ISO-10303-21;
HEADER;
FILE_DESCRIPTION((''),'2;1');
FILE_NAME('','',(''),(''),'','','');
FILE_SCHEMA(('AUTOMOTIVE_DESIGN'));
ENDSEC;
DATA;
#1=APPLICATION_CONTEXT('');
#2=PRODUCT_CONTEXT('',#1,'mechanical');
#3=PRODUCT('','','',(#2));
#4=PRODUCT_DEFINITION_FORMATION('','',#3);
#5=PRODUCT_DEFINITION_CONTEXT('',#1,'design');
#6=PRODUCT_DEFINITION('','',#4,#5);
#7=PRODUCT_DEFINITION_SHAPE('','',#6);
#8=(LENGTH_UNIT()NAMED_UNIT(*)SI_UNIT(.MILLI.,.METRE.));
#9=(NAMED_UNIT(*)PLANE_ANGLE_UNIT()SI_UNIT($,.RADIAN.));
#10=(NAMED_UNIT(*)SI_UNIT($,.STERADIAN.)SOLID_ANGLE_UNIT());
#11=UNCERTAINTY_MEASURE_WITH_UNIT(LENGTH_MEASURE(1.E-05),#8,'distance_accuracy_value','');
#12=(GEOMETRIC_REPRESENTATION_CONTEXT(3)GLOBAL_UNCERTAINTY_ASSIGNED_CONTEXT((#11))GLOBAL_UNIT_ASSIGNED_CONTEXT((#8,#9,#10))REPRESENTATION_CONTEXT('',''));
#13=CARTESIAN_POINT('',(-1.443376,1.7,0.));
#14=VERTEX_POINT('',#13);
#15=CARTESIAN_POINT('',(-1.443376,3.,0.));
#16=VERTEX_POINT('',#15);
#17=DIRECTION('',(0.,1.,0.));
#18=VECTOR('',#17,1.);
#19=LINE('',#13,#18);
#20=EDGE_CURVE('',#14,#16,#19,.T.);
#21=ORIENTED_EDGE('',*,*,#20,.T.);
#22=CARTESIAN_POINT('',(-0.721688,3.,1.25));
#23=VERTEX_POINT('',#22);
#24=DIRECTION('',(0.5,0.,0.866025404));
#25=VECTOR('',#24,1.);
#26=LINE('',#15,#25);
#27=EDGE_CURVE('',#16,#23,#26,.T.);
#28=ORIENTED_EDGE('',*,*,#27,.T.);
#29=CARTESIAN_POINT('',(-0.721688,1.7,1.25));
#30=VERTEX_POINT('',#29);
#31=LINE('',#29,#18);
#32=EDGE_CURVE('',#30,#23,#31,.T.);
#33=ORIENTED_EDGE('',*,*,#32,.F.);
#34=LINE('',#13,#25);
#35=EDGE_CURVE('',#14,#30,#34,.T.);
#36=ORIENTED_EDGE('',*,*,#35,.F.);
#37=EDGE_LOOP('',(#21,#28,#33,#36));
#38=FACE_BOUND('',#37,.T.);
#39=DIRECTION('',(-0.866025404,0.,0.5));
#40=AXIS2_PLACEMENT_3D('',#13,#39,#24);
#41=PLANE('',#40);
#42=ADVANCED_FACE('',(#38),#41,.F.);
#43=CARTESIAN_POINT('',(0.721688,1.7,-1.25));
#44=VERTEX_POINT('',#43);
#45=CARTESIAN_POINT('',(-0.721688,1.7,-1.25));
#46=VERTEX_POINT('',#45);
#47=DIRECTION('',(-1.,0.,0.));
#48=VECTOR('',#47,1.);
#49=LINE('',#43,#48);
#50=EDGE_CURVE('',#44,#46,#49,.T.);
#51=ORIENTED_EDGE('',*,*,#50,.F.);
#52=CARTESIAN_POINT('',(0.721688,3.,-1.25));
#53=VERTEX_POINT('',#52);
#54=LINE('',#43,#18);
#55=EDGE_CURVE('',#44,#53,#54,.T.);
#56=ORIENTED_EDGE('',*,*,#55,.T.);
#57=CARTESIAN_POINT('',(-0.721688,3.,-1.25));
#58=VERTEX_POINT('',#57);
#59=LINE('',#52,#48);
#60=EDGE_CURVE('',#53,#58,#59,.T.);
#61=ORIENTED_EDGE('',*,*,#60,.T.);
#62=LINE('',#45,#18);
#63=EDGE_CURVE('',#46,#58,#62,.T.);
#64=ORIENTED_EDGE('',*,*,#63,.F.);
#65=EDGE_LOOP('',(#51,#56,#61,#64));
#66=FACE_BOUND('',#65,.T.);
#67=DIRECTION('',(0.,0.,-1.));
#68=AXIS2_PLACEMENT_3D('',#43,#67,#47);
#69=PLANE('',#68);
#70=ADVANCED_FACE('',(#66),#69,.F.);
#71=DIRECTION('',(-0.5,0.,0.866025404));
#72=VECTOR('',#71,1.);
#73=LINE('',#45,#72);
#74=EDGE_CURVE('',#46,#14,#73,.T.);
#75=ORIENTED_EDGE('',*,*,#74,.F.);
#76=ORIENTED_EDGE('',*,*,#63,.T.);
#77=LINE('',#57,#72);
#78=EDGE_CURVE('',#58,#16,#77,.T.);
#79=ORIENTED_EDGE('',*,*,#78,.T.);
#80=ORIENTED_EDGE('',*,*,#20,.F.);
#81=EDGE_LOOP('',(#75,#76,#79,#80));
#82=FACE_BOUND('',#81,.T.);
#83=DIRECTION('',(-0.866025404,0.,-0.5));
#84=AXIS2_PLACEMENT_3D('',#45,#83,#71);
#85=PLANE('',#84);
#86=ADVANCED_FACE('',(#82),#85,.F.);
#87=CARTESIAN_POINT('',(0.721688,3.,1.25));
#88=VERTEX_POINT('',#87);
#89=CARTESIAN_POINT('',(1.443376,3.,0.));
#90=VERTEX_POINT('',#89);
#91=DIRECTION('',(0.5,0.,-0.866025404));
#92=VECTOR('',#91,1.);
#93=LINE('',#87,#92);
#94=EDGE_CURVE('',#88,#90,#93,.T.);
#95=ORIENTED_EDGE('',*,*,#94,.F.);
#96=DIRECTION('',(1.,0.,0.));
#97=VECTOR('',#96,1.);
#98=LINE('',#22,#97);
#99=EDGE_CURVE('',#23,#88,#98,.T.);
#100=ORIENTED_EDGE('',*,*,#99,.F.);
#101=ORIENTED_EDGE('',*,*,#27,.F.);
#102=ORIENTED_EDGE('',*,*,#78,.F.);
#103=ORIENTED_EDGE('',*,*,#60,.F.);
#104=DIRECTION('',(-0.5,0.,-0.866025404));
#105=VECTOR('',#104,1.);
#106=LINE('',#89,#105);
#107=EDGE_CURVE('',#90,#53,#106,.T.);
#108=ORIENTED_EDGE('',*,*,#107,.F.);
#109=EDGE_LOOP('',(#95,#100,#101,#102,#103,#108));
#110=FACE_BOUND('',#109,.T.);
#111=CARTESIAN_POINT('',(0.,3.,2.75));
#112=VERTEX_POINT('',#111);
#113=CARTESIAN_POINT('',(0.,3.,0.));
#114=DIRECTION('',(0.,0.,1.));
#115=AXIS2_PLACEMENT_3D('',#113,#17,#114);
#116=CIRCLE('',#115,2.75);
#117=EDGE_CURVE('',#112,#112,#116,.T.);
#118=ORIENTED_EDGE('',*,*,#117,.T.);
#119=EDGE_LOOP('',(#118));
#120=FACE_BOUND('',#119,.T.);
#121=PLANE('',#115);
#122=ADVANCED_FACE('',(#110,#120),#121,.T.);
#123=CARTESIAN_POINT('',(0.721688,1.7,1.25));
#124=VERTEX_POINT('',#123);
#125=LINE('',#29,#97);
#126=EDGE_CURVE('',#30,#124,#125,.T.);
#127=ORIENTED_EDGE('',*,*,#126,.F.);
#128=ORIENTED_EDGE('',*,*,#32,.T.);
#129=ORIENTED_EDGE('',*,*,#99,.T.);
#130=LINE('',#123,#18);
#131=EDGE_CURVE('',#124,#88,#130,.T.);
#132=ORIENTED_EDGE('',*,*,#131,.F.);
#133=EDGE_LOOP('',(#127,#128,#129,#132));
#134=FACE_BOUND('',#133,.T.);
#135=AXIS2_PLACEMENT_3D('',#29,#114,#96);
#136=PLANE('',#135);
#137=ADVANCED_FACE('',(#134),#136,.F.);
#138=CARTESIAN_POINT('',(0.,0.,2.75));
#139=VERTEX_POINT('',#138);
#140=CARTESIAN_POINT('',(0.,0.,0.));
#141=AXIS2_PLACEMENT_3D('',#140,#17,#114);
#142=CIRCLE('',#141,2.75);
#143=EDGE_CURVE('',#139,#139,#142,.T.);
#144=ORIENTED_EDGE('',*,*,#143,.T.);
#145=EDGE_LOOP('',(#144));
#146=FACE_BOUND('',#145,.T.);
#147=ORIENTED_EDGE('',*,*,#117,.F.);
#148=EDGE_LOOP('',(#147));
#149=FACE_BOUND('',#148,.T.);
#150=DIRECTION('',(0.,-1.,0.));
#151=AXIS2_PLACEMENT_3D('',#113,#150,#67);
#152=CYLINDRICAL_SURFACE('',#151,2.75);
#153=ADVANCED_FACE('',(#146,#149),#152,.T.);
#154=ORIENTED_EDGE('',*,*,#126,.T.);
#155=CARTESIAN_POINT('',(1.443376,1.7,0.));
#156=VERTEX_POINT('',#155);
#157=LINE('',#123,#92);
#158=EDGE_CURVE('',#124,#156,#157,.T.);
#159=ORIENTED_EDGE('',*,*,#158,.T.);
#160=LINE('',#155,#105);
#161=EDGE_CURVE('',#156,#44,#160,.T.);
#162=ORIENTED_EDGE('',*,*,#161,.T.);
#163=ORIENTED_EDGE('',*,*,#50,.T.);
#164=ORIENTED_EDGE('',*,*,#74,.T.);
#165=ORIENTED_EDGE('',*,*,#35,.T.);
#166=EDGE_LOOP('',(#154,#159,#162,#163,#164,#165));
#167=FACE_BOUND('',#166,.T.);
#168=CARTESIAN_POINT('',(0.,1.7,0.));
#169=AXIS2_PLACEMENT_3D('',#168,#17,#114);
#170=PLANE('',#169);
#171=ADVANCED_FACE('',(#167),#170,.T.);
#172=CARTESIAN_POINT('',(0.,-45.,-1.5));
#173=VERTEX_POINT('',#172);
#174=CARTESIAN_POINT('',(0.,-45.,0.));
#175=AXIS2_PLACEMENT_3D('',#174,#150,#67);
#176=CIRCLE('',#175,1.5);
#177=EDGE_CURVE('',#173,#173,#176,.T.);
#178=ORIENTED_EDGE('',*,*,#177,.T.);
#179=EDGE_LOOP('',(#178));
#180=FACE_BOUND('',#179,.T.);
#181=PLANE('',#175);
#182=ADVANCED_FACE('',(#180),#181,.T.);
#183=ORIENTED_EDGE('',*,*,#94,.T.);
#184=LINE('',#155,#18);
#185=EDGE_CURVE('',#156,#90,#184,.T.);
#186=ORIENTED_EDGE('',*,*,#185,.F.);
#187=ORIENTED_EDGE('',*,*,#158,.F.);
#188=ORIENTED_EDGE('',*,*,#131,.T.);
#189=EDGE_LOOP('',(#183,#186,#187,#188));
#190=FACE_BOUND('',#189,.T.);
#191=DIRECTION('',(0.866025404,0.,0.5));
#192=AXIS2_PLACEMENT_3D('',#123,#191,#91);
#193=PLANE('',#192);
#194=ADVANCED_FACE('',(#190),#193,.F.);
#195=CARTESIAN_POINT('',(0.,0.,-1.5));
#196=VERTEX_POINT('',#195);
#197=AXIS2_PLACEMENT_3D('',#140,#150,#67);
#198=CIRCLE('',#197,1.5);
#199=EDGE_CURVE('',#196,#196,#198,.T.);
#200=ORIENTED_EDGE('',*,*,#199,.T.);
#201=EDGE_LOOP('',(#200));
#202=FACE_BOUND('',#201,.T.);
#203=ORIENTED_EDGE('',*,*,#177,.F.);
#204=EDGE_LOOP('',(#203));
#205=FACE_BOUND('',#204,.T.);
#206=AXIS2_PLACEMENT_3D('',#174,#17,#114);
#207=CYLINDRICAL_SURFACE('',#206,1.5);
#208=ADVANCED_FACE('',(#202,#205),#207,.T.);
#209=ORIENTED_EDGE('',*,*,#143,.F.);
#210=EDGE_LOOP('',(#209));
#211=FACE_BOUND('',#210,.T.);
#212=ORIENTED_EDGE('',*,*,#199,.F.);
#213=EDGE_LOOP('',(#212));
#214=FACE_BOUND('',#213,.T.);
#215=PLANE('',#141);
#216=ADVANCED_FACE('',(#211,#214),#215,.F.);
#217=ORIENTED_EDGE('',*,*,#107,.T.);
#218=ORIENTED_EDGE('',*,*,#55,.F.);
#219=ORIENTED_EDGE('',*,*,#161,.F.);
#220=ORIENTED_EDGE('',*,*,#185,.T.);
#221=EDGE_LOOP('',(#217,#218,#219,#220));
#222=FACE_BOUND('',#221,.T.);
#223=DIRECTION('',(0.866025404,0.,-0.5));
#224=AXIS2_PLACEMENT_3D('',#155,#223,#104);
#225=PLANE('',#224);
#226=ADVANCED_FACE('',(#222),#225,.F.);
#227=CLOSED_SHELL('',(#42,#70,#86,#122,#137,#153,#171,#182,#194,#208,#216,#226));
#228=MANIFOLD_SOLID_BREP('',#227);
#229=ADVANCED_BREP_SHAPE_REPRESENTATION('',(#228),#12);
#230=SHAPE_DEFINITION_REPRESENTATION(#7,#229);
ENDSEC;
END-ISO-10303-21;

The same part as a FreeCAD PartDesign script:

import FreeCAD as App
import Part
import Sketcher

V = App.Vector
Q = App.Units.Quantity

doc = App.newDocument("Part")
body = doc.addObject("PartDesign::Body", "Body")

sketch1 = body.newObject("Sketcher::SketchObject", "Sketch")
sketch1.AttachmentSupport = (doc.getObject("XZ_Plane"), [""])
sketch1.MapMode = "FlatFace"
sketch1.addGeometry(Part.Circle(V(0, 0, 0), V(0, 0, 1), 2.8), False)
sketch1.addConstraint([
    Sketcher.Constraint("Coincident", 0, 3, -1, 1),
    Sketcher.Constraint("Diameter", 0, Q("5.5 mm")),
])
pad1 = body.newObject("PartDesign::Pad", "Pad")
pad1.Profile = sketch1
pad1.Length = 3
pad1.Reversed = True

sketch2 = body.newObject("Sketcher::SketchObject", "Sketch001")
sketch2.AttachmentSupport = (doc.getObject("XZ_Plane"), [""])
sketch2.MapMode = "FlatFace"
sketch2.AttachmentOffset = App.Placement(V(0, 0, -3), App.Rotation())
sketch2.addGeometry([
    Part.LineSegment(V(1.4, 0, 0), V(0.7, -1.2, 0)),
    Part.LineSegment(V(0.7, -1.2, 0), V(-0.7, -1.2, 0)),
    Part.LineSegment(V(-0.7, -1.2, 0), V(-1.4, 0, 0)),
    Part.LineSegment(V(-1.4, 0, 0), V(-0.7, 1.2, 0)),
    Part.LineSegment(V(-0.7, 1.2, 0), V(0.7, 1.2, 0)),
    Part.LineSegment(V(0.7, 1.2, 0), V(1.4, 0, 0)),
], False)
sketch2.addConstraint([
    Sketcher.Constraint("Coincident", 0, 2, 1, 1),
    Sketcher.Constraint("Coincident", 1, 2, 2, 1),
    Sketcher.Constraint("Coincident", 2, 2, 3, 1),
    Sketcher.Constraint("Coincident", 3, 2, 4, 1),
    Sketcher.Constraint("Coincident", 4, 2, 5, 1),
    Sketcher.Constraint("Coincident", 5, 2, 0, 1),
    Sketcher.Constraint("Horizontal", 1),
    Sketcher.Constraint("Horizontal", 4),
    Sketcher.Constraint("Symmetric", 0, 2, 3, 2, -1, 1),
    Sketcher.Constraint("Symmetric", 2, 2, 5, 2, -1, 1),
    Sketcher.Constraint("PointOnObject", 2, 2, -1),
    Sketcher.Constraint("Parallel", 2, 5),
    Sketcher.Constraint("Vertical", 1, 2, 3, 2),
    Sketcher.Constraint("Angle", 0, Q("-120 deg")),
    Sketcher.Constraint("DistanceY", 1, 2, 3, 2, Q("2.5 mm")),
    Sketcher.Constraint("DistanceX", 1, 2, 1, 1, Q("1.443376 mm")),
])
pocket1 = body.newObject("PartDesign::Pocket", "Pocket")
pocket1.Profile = sketch2
pocket1.Length = 1.3
pocket1.Reversed = True

sketch3 = body.newObject("Sketcher::SketchObject", "Sketch002")
sketch3.AttachmentSupport = (doc.getObject("XZ_Plane"), [""])
sketch3.MapMode = "FlatFace"
sketch3.addGeometry(Part.Circle(V(0, 0, 0), V(0, 0, 1), 1.5), False)
sketch3.addConstraint([
    Sketcher.Constraint("Coincident", 0, 3, -1, 1),
    Sketcher.Constraint("Diameter", 0, Q("3 mm")),
])
pad2 = body.newObject("PartDesign::Pad", "Pad001")
pad2.Profile = sketch3
pad2.Length = 45

doc.recompute()
